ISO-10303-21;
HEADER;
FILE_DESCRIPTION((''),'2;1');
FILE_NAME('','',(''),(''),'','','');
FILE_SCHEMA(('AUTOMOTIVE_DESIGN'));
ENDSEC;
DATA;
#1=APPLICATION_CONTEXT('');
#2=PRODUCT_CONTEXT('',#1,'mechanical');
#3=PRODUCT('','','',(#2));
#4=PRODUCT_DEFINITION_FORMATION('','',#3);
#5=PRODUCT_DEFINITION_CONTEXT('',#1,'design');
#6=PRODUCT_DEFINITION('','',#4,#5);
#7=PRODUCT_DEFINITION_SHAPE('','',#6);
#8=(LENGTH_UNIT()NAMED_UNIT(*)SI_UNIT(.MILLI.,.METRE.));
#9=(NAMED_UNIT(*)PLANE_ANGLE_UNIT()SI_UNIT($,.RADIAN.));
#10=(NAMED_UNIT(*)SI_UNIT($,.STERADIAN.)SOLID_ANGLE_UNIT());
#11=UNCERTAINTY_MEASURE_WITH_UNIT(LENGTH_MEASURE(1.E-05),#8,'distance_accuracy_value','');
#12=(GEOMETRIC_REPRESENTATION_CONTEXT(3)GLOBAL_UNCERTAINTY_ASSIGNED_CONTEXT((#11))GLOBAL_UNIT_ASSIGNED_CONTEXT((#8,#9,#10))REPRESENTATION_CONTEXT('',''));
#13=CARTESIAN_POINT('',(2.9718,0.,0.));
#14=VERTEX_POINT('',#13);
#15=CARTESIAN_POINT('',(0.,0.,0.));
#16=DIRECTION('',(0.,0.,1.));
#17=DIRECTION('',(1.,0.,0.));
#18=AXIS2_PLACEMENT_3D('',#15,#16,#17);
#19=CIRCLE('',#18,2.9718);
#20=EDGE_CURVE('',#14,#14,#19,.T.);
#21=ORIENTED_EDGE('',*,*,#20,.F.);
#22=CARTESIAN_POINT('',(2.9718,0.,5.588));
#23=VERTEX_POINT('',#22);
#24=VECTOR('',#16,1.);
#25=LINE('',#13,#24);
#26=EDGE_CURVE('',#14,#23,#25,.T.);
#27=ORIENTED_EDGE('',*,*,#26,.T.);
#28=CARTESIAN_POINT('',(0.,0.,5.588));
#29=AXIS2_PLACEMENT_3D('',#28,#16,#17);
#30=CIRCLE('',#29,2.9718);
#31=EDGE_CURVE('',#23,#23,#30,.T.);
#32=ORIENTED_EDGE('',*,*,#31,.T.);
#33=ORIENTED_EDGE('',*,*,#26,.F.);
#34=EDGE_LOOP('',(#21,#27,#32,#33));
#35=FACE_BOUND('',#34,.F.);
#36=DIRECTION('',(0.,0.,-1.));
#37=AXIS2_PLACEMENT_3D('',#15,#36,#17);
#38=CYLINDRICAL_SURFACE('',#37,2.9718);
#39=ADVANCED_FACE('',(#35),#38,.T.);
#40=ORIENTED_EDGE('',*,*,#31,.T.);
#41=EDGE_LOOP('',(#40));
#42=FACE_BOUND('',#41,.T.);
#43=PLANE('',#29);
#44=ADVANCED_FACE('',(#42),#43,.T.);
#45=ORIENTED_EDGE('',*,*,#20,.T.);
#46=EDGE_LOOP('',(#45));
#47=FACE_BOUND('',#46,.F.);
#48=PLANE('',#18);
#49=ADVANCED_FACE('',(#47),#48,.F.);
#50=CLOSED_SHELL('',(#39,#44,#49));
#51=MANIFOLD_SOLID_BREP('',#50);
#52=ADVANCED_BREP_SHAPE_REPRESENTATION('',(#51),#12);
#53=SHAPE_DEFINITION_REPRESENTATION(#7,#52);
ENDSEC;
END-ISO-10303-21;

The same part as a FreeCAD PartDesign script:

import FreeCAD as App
import Part
import Sketcher

V = App.Vector
Q = App.Units.Quantity

doc = App.newDocument("Part")
body = doc.addObject("PartDesign::Body", "Body")

# Sketch on XY plane
sketch1 = body.newObject("Sketcher::SketchObject", "Sketch")
sketch1.AttachmentSupport = (doc.getObject("XY_Plane"), [""])
sketch1.MapMode = "FlatFace"
sketch1.addGeometry(Part.Circle(V(0, 0, 0), V(0, 0, 1), 3), False)
sketch1.addConstraint([
    Sketcher.Constraint("Coincident", 0, 3, -1, 1),
    Sketcher.Constraint("Diameter", 0, Q("0.234 in")),
])
pad1 = body.newObject("PartDesign::Pad", "Pad")
pad1.Profile = sketch1
pad1.Length = Q("0.22 in")

doc.recompute()
